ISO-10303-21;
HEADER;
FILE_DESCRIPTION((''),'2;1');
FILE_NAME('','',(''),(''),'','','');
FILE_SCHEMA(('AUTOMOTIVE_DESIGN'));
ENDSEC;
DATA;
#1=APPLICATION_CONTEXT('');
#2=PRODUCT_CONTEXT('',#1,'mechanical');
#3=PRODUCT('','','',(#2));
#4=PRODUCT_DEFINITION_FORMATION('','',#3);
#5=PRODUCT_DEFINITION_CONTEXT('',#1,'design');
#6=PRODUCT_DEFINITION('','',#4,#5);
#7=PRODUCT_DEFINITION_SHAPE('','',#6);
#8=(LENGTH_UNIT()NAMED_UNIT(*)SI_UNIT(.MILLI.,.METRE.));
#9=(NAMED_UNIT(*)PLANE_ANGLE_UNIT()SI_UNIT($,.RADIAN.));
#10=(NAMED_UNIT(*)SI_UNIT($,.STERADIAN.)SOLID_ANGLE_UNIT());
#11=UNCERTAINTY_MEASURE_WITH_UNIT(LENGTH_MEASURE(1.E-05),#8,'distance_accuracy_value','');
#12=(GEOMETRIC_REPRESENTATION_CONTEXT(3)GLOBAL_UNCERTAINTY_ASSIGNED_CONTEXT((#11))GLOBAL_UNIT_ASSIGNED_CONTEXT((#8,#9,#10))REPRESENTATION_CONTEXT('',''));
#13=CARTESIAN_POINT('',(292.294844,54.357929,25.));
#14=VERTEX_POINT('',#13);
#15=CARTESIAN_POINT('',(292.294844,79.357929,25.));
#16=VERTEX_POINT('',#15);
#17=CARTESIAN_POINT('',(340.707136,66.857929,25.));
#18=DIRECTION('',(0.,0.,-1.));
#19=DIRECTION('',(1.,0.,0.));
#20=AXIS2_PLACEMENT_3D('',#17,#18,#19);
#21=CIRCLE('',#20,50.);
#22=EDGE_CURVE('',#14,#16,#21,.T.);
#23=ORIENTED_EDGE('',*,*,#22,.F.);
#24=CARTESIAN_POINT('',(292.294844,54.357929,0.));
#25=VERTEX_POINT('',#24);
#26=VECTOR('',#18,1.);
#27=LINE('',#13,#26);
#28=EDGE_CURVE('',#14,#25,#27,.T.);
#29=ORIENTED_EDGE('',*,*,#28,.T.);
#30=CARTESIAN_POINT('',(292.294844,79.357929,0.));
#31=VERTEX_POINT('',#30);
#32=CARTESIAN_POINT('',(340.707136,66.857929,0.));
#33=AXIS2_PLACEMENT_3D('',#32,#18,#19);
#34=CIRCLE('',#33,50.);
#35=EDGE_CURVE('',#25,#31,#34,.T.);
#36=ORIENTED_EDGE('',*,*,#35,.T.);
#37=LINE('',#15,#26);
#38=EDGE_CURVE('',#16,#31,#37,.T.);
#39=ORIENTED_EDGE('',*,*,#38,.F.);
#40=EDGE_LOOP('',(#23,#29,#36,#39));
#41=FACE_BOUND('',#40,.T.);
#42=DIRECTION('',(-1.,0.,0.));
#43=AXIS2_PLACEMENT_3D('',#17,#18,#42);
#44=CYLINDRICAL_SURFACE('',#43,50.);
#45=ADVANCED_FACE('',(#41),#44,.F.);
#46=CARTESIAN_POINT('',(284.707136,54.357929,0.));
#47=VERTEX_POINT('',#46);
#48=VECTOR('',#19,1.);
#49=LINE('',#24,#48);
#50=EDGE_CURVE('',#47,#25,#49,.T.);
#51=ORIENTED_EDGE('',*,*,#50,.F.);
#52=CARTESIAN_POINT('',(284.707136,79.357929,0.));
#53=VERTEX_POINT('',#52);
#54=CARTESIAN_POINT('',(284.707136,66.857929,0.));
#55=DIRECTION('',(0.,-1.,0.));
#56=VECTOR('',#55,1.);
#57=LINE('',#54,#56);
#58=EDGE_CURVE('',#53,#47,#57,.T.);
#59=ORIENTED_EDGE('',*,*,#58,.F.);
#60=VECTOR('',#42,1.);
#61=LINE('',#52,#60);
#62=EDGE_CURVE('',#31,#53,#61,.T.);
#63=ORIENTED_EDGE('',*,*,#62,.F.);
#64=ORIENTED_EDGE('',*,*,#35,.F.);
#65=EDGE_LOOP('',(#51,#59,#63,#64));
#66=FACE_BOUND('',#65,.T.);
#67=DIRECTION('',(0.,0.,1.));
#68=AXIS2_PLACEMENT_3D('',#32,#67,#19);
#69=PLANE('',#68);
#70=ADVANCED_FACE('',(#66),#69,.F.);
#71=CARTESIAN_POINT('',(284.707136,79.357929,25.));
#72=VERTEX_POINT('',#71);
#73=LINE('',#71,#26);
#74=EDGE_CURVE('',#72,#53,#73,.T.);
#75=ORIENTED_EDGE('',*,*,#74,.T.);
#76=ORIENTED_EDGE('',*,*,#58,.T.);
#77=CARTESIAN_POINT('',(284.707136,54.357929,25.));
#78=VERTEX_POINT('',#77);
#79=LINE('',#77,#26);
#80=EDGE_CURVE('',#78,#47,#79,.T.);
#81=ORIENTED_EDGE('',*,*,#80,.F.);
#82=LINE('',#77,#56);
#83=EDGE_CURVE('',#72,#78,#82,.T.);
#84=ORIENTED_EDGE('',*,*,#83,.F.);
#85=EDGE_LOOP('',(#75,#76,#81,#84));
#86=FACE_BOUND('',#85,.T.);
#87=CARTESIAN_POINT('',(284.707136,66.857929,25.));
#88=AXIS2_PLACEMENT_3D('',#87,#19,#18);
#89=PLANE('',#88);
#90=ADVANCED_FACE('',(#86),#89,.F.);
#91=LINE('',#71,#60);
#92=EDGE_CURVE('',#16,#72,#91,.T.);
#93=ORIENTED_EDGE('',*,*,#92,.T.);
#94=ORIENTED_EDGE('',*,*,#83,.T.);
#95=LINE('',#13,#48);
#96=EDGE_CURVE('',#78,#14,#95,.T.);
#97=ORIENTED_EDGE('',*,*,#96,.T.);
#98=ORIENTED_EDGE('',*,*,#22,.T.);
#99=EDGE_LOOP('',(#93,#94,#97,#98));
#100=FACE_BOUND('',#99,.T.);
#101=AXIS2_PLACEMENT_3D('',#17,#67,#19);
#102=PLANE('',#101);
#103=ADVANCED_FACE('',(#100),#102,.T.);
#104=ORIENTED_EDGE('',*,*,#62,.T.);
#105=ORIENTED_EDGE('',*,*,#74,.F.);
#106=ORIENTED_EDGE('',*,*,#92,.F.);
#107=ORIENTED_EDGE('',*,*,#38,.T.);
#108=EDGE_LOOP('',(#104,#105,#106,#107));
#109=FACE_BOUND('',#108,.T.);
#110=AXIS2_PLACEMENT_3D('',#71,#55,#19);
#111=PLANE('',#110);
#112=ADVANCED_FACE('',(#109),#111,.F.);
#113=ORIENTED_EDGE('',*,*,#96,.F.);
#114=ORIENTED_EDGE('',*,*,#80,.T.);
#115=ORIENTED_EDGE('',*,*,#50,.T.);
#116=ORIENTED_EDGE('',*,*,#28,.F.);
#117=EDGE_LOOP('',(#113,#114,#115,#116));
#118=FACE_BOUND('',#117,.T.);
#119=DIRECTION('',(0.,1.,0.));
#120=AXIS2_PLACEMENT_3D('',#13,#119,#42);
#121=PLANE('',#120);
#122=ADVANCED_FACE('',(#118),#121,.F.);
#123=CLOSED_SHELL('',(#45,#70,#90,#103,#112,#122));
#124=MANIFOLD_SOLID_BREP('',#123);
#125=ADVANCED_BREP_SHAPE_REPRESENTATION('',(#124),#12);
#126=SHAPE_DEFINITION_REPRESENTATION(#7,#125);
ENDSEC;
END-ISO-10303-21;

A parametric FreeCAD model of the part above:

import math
import FreeCAD as App
import Part
import Sketcher
from FreeCAD import Vector
Q = App.Units.Quantity

doc = App.newDocument("Part")
params = doc.addObject("Spreadsheet::Sheet", "Params")
for row, (alias, value) in enumerate([
    ("sketch1_radius", "50 mm"),
    ("sketch1_height", "25 mm"),
    ("pad1_length", "25 mm"),
], start=1):
    params.set(f"A{row}", alias)
    params.set(f"B{row}", "=" + value)
    params.setAlias(f"B{row}", alias)

body = doc.addObject("PartDesign::Body", "Body")

# Sketch on XY plane
sketch1 = body.newObject("Sketcher::SketchObject", "Sketch")
sketch1.AttachmentSupport = (doc.getObject("XY_Plane"), [""])
sketch1.MapMode = "FlatFace"
sketch1.addGeometry([
    Part.LineSegment(Vector(292, 79, 0), Vector(285, 79, 0)),
    Part.LineSegment(Vector(285, 79, 0), Vector(285, 54, 0)),
    Part.LineSegment(Vector(285, 54, 0), Vector(292, 54, 0)),
    Part.ArcOfCircle(Part.Circle(Vector(341, 67, 0), Vector(0, 0, 1), 50), math.radians(166), math.radians(194)),
], False)
sketch1.addConstraint([
    Sketcher.Constraint("Coincident", 0, 2, 1, 1),
    Sketcher.Constraint("Coincident", 1, 2, 2, 1),
    Sketcher.Constraint("Coincident", 2, 2, 3, 2),
    Sketcher.Constraint("Coincident", 3, 1, 0, 1),
    Sketcher.Constraint("Horizontal", 0),
    Sketcher.Constraint("Vertical", 1),
    Sketcher.Constraint("Horizontal", 2),
    Sketcher.Constraint("Vertical", 2, 2, 3, 1),
    Sketcher.Constraint("Radius", 3, Q("50 mm")),
    Sketcher.Constraint("DistanceY", 1, 2, 1, 1, Q("25 mm")),
    Sketcher.Constraint("DistanceX", 0, 2, 3, 3, Q("56 mm")),
    Sketcher.Constraint("DistanceY", -1, 1, 3, 3, Q("66.857929 mm")),
    Sketcher.Constraint("DistanceX", -1, 1, 3, 3, Q("340.707136 mm")),
])
sketch1.setExpression("Constraints[8]", "Params.sketch1_radius")
sketch1.setExpression("Constraints[9]", "Params.sketch1_height")
pad1 = body.newObject("PartDesign::Pad", "Pad")
pad1.Profile = sketch1
pad1.setExpression("Length", "Params.pad1_length")

doc.recompute()
